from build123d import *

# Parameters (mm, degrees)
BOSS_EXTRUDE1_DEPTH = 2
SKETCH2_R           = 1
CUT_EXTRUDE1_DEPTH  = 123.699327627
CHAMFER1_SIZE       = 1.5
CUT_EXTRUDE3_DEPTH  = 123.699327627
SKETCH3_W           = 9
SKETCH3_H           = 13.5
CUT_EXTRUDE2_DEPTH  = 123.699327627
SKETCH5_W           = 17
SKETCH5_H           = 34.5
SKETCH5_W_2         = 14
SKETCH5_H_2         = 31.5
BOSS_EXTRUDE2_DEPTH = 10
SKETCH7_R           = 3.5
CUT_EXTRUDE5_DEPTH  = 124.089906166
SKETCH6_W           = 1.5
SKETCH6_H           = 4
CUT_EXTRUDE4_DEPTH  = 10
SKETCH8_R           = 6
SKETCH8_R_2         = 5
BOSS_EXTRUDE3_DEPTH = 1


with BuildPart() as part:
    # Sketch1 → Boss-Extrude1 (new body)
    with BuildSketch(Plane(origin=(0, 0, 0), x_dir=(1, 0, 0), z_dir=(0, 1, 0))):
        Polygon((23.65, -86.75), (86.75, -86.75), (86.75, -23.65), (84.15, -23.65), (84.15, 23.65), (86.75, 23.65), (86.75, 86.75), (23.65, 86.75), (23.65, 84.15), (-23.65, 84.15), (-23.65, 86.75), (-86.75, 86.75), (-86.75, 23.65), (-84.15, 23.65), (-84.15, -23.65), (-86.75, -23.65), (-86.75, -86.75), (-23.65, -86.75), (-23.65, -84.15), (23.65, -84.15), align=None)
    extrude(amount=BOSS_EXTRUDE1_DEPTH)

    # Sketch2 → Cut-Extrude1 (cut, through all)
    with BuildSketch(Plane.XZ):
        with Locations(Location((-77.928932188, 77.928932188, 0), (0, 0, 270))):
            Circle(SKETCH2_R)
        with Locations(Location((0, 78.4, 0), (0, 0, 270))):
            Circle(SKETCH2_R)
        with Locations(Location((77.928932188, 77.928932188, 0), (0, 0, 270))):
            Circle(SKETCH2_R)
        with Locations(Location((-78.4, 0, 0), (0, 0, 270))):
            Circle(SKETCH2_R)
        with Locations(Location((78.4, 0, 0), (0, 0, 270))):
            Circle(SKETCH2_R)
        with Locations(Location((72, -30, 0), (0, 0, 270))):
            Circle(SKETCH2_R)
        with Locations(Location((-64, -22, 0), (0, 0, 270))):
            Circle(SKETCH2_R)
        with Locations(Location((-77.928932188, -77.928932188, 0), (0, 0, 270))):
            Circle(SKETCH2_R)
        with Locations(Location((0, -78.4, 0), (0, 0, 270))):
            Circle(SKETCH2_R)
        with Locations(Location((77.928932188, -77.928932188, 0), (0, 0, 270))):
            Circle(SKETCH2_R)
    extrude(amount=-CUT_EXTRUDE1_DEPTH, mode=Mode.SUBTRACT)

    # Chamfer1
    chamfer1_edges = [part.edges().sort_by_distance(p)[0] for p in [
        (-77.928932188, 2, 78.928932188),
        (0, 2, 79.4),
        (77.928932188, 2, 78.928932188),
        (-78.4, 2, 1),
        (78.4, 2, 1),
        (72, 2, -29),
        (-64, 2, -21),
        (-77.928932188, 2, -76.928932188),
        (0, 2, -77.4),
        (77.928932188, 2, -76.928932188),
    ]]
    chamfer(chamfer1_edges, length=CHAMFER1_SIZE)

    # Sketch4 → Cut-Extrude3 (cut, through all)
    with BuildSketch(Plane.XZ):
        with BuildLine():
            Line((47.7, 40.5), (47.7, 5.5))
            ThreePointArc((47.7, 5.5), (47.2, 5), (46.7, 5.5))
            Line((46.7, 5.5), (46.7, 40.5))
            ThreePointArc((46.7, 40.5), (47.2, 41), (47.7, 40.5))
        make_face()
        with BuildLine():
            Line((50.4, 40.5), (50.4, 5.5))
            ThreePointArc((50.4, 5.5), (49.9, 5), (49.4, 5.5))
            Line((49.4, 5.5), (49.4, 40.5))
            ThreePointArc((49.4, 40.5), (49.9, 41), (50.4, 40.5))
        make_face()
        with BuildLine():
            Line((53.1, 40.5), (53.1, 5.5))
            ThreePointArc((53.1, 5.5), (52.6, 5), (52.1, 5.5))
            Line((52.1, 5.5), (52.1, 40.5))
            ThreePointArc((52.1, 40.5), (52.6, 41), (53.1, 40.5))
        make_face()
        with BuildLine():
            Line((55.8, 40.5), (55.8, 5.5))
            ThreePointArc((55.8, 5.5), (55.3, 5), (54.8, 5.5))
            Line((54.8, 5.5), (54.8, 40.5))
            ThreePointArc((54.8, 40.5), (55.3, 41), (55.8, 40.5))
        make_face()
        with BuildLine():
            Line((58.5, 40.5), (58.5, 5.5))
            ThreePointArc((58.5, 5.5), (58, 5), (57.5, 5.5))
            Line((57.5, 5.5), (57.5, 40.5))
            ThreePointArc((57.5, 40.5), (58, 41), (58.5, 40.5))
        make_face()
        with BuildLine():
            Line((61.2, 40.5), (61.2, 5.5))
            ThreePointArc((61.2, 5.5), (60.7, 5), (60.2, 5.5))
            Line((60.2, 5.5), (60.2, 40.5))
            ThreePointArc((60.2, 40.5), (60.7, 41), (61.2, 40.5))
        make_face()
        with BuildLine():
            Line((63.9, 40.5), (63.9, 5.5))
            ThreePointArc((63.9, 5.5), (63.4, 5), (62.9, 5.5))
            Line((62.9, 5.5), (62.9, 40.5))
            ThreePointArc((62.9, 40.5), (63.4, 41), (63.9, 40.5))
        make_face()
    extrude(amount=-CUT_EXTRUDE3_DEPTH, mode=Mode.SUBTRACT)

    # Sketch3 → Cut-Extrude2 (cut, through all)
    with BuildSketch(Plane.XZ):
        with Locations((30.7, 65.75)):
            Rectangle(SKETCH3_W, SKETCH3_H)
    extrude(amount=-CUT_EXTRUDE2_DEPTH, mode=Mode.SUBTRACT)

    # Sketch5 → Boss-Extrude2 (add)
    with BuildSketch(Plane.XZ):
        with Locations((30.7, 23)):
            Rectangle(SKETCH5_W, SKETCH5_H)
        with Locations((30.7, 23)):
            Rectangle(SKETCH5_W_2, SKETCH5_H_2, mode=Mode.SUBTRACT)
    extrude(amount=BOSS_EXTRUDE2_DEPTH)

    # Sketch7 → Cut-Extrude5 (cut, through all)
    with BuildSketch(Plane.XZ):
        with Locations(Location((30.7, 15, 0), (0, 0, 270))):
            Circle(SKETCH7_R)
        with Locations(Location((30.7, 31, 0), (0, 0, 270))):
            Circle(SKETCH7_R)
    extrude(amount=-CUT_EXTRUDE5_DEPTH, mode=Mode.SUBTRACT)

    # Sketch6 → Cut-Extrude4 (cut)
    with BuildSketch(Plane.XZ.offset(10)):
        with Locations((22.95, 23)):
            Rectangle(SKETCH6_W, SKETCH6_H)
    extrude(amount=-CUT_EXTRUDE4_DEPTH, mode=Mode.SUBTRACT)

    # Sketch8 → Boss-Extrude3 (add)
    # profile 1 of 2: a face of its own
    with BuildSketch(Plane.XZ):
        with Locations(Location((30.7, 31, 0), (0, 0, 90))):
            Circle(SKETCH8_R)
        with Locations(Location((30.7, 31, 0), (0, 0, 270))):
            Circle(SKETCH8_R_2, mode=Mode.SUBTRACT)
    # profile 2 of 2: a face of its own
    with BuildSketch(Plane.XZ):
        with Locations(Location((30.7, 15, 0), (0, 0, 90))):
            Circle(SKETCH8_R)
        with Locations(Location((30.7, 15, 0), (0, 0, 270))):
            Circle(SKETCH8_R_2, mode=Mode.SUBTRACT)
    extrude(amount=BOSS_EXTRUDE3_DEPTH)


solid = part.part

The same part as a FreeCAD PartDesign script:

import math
import FreeCAD as App
import Part
import Sketcher
Q = App.Units.Quantity


def edges_at(feature, points):
    """Names of the edges that pass closest to the given points."""
    edges = feature.Shape.Edges
    near = lambda p: min(range(len(edges)), key=lambda i: edges[i].distToShape(Part.Vertex(*p))[0])
    return sorted({f"Edge{near(p) + 1}" for p in points})


def add_polygon(sketch, points):
    """Adds a closed chain of lines whose ends are joined by coincident constraints."""
    first, n = sketch.GeometryCount, len(points)
    for a, b in zip(points, points[1:] + points[:1]):
        sketch.addGeometry(Part.LineSegment(App.Vector(*a, 0), App.Vector(*b, 0)), False)
    for i in range(n):
        sketch.addConstraint(Sketcher.Constraint("Coincident", first + i, 2, first + (i + 1) % n, 1))

doc = App.newDocument("Part")
body = doc.addObject("PartDesign::Body", "Body")

sketch1 = body.newObject("Sketcher::SketchObject", "Sketch")
sketch1.AttachmentSupport = (doc.getObject("XZ_Plane"), [""])
sketch1.MapMode = "FlatFace"
add_polygon(sketch1, [(23.65, 86.75), (86.75, 86.75), (86.75, 23.65), (84.15, 23.65), (84.15, -23.65), (86.75, -23.65), (86.75, -86.75), (23.65, -86.75), (23.65, -84.15), (-23.65, -84.15), (-23.65, -86.75), (-86.75, -86.75), (-86.75, -23.65), (-84.15, -23.65), (-84.15, 23.65), (-86.75, 23.65), (-86.75, 86.75), (-23.65, 86.75), (-23.65, 84.15), (23.65, 84.15)])
sketch1.addConstraint(Sketcher.Constraint("Horizontal", 0))
sketch1.addConstraint(Sketcher.Constraint("Vertical", 1))
sketch1.addConstraint(Sketcher.Constraint("Horizontal", 2))
sketch1.addConstraint(Sketcher.Constraint("Vertical", 3))
sketch1.addConstraint(Sketcher.Constraint("Horizontal", 4))
sketch1.addConstraint(Sketcher.Constraint("Vertical", 5))
sketch1.addConstraint(Sketcher.Constraint("Horizontal", 6))
sketch1.addConstraint(Sketcher.Constraint("Vertical", 7))
sketch1.addConstraint(Sketcher.Constraint("Horizontal", 8))
sketch1.addConstraint(Sketcher.Constraint("Vertical", 9))
sketch1.addConstraint(Sketcher.Constraint("Horizontal", 10))
sketch1.addConstraint(Sketcher.Constraint("Vertical", 11))
sketch1.addConstraint(Sketcher.Constraint("Horizontal", 12))
sketch1.addConstraint(Sketcher.Constraint("Vertical", 13))
sketch1.addConstraint(Sketcher.Constraint("Horizontal", 14))
sketch1.addConstraint(Sketcher.Constraint("Vertical", 15))
sketch1.addConstraint(Sketcher.Constraint("Horizontal", 16))
sketch1.addConstraint(Sketcher.Constraint("Vertical", 17))
sketch1.addConstraint(Sketcher.Constraint("Horizontal", 18))
sketch1.addConstraint(Sketcher.Constraint("Vertical", 19))
sketch1.addConstraint(Sketcher.Constraint("Symmetric", 0, 2, 10, 2, -1, 1))
sketch1.addConstraint(Sketcher.Constraint("Symmetric", 2, 2, 12, 2, -1, 1))
sketch1.addConstraint(Sketcher.Constraint("Symmetric", 4, 2, 14, 2, -1, 1))
sketch1.addConstraint(Sketcher.Constraint("Symmetric", 6, 2, 16, 2, -1, 1))
sketch1.addConstraint(Sketcher.Constraint("Symmetric", 8, 2, 18, 2, -1, 1))
sketch1.addConstraint(Sketcher.Constraint("Symmetric", 6, 2, 9, 2, -2))
sketch1.addConstraint(Sketcher.Constraint("Symmetric", 4, 2, 11, 2, -2))
sketch1.addConstraint(Sketcher.Constraint("Equal", 16, 1))
sketch1.addConstraint(Sketcher.Constraint("Equal", 18, 3))
sketch1.addConstraint(Sketcher.Constraint("Equal", 14, 7))
sketch1.addConstraint(Sketcher.Constraint("DistanceX", 0, 1, 0, 2, Q("63.1 mm")))
sketch1.addConstraint(Sketcher.Constraint("DistanceX", 2, 2, 2, 1, Q("2.6 mm")))
sketch1.addConstraint(Sketcher.Constraint("DistanceX", 8, 2, 8, 1, Q("47.3 mm")))
pad1 = body.newObject("PartDesign::Pad", "Pad")
pad1.Profile = sketch1
pad1.Length = 2
pad1.Reversed = True

sketch2 = body.newObject("Sketcher::SketchObject", "Sketch001")
sketch2.AttachmentSupport = (doc.getObject("XZ_Plane"), [""])
sketch2.MapMode = "FlatFace"
sketch2.addGeometry(Part.Circle(App.Vector(-77.928932, 77.928932, 0), App.Vector(0, 0, 1), 1), False)
sketch2.addGeometry(Part.Circle(App.Vector(0, 78.4, 0), App.Vector(0, 0, 1), 1), False)
sketch2.addGeometry(Part.Circle(App.Vector(77.928932, 77.928932, 0), App.Vector(0, 0, 1), 1), False)
sketch2.addGeometry(Part.Circle(App.Vector(-78.4, 0, 0), App.Vector(0, 0, 1), 1), False)
sketch2.addGeometry(Part.Circle(App.Vector(78.4, 0, 0), App.Vector(0, 0, 1), 1), False)
sketch2.addGeometry(Part.Circle(App.Vector(72, -30, 0), App.Vector(0, 0, 1), 1), False)
sketch2.addGeometry(Part.Circle(App.Vector(-64, -22, 0), App.Vector(0, 0, 1), 1), False)
sketch2.addGeometry(Part.Circle(App.Vector(-77.928932, -77.928932, 0), App.Vector(0, 0, 1), 1), False)
sketch2.addGeometry(Part.Circle(App.Vector(0, -78.4, 0), App.Vector(0, 0, 1), 1), False)
sketch2.addGeometry(Part.Circle(App.Vector(77.928932, -77.928932, 0), App.Vector(0, 0, 1), 1), False)
sketch2.addConstraint(Sketcher.Constraint("Equal", 0, 1))
sketch2.addConstraint(Sketcher.Constraint("Equal", 1, 2))
sketch2.addConstraint(Sketcher.Constraint("Equal", 2, 3))
sketch2.addConstraint(Sketcher.Constraint("Equal", 3, 4))
sketch2.addConstraint(Sketcher.Constraint("Equal", 4, 5))
sketch2.addConstraint(Sketcher.Constraint("Equal", 5, 6))
sketch2.addConstraint(Sketcher.Constraint("Equal", 6, 7))
sketch2.addConstraint(Sketcher.Constraint("Equal", 7, 8))
sketch2.addConstraint(Sketcher.Constraint("Equal", 8, 9))
sketch2.addConstraint(Sketcher.Constraint("Symmetric", 3, 3, 4, 3, -1, 1))
sketch2.addConstraint(Sketcher.Constraint("Symmetric", 2, 3, 7, 3, -1, 1))
sketch2.addConstraint(Sketcher.Constraint("Symmetric", 1, 3, 8, 3, -1, 1))
sketch2.addConstraint(Sketcher.Constraint("Symmetric", 0, 3, 9, 3, -1, 1))
sketch2.addConstraint(Sketcher.Constraint("Symmetric", 0, 3, 2, 3, -2))
sketch2.addConstraint(Sketcher.Constraint("PointOnObject", 1, 3, -2))
sketch2.addConstraint(Sketcher.Constraint("PointOnObject", 3, 3, -1))
sketch2.addConstraint(Sketcher.Constraint("Diameter", 0, Q("2 mm")))
sketch2.addConstraint(Sketcher.Constraint("DistanceX", -1, 1, 5, 3, Q("72 mm")))
sketch2.addConstraint(Sketcher.Constraint("DistanceY", 5, 3, -1, 1, Q("30 mm")))
sketch2.addConstraint(Sketcher.Constraint("DistanceX", 6, 3, -1, 1, Q("64 mm")))
sketch2.addConstraint(Sketcher.Constraint("DistanceY", 6, 3, -1, 1, Q("22 mm")))
sketch2.addConstraint(Sketcher.Constraint("DistanceY", -1, 1, 1, 3, Q("78.4 mm")))
sketch2.addConstraint(Sketcher.Constraint("DistanceX", 3, 3, -1, 1, Q("78.4 mm")))
sketch2.addConstraint(Sketcher.Constraint("DistanceX", 0, 3, -1, 1, Q("77.928932 mm")))
sketch2.addConstraint(Sketcher.Constraint("DistanceY", -1, 1, 0, 3, Q("77.928932 mm")))
pocket1 = body.newObject("PartDesign::Pocket", "Pocket")
pocket1.Profile = sketch2
pocket1.Type = "ThroughAll"
doc.recompute()

chamfer = body.newObject("PartDesign::Chamfer", "Chamfer")
chamfer.Base = (pocket1, edges_at(pocket1, [
    (-77.929, 2, 78.929),
    (0, 2, 79.4),
    (77.929, 2, 78.929),
    (-78.4, 2, 1),
    (78.4, 2, 1),
    (72, 2, -29),
    (-64, 2, -21),
    (-77.929, 2, -76.929),
    (0, 2, -77.4),
    (77.929, 2, -76.929),
]))
chamfer.Size = 1.5

sketch3 = body.newObject("Sketcher::SketchObject", "Sketch002")
sketch3.AttachmentSupport = (doc.getObject("XZ_Plane"), [""])
sketch3.MapMode = "FlatFace"
sketch3.addGeometry(Part.LineSegment(App.Vector(47.7, 5.5, 0), App.Vector(47.7, 40.5, 0)), False)
sketch3.addGeometry(Part.ArcOfCircle(Part.Circle(App.Vector(47.2, 40.5, 0), App.Vector(0, 0, 1), 0.5), math.radians(0), math.radians(180)), False)
sketch3.addGeometry(Part.LineSegment(App.Vector(46.7, 40.5, 0), App.Vector(46.7, 5.5, 0)), False)
sketch3.addGeometry(Part.ArcOfCircle(Part.Circle(App.Vector(47.2, 5.5, 0), App.Vector(0, 0, 1), 0.5), math.radians(180), math.radians(360)), False)
sketch3.addGeometry(Part.LineSegment(App.Vector(50.4, 5.5, 0), App.Vector(50.4, 40.5, 0)), False)
sketch3.addGeometry(Part.ArcOfCircle(Part.Circle(App.Vector(49.9, 40.5, 0), App.Vector(0, 0, 1), 0.5), math.radians(0), math.radians(180)), False)
sketch3.addGeometry(Part.LineSegment(App.Vector(49.4, 40.5, 0), App.Vector(49.4, 5.5, 0)), False)
sketch3.addGeometry(Part.ArcOfCircle(Part.Circle(App.Vector(49.9, 5.5, 0), App.Vector(0, 0, 1), 0.5), math.radians(180), math.radians(360)), False)
sketch3.addGeometry(Part.LineSegment(App.Vector(53.1, 5.5, 0), App.Vector(53.1, 40.5, 0)), False)
sketch3.addGeometry(Part.ArcOfCircle(Part.Circle(App.Vector(52.6, 40.5, 0), App.Vector(0, 0, 1), 0.5), math.radians(0), math.radians(180)), False)
sketch3.addGeometry(Part.LineSegment(App.Vector(52.1, 40.5, 0), App.Vector(52.1, 5.5, 0)), False)
sketch3.addGeometry(Part.ArcOfCircle(Part.Circle(App.Vector(52.6, 5.5, 0), App.Vector(0, 0, 1), 0.5), math.radians(180), math.radians(360)), False)
sketch3.addGeometry(Part.LineSegment(App.Vector(55.8, 5.5, 0), App.Vector(55.8, 40.5, 0)), False)
sketch3.addGeometry(Part.ArcOfCircle(Part.Circle(App.Vector(55.3, 40.5, 0), App.Vector(0, 0, 1), 0.5), math.radians(0), math.radians(180)), False)
sketch3.addGeometry(Part.LineSegment(App.Vector(54.8, 40.5, 0), App.Vector(54.8, 5.5, 0)), False)
sketch3.addGeometry(Part.ArcOfCircle(Part.Circle(App.Vector(55.3, 5.5, 0), App.Vector(0, 0, 1), 0.5), math.radians(180), math.radians(360)), False)
sketch3.addGeometry(Part.LineSegment(App.Vector(58.5, 5.5, 0), App.Vector(58.5, 40.5, 0)), False)
sketch3.addGeometry(Part.ArcOfCircle(Part.Circle(App.Vector(58, 40.5, 0), App.Vector(0, 0, 1), 0.5), math.radians(0), math.radians(180)), False)
sketch3.addGeometry(Part.LineSegment(App.Vector(57.5, 40.5, 0), App.Vector(57.5, 5.5, 0)), False)
sketch3.addGeometry(Part.ArcOfCircle(Part.Circle(App.Vector(58, 5.5, 0), App.Vector(0, 0, 1), 0.5), math.radians(180), math.radians(360)), False)
sketch3.addGeometry(Part.LineSegment(App.Vector(61.2, 5.5, 0), App.Vector(61.2, 40.5, 0)), False)
sketch3.addGeometry(Part.ArcOfCircle(Part.Circle(App.Vector(60.7, 40.5, 0), App.Vector(0, 0, 1), 0.5), math.radians(0), math.radians(180)), False)
sketch3.addGeometry(Part.LineSegment(App.Vector(60.2, 40.5, 0), App.Vector(60.2, 5.5, 0)), False)
sketch3.addGeometry(Part.ArcOfCircle(Part.Circle(App.Vector(60.7, 5.5, 0), App.Vector(0, 0, 1), 0.5), math.radians(180), math.radians(360)), False)
sketch3.addGeometry(Part.LineSegment(App.Vector(63.9, 5.5, 0), App.Vector(63.9, 40.5, 0)), False)
sketch3.addGeometry(Part.ArcOfCircle(Part.Circle(App.Vector(63.4, 40.5, 0), App.Vector(0, 0, 1), 0.5), math.radians(0), math.radians(180)), False)
sketch3.addGeometry(Part.LineSegment(App.Vector(62.9, 40.5, 0), App.Vector(62.9, 5.5, 0)), False)
sketch3.addGeometry(Part.ArcOfCircle(Part.Circle(App.Vector(63.4, 5.5, 0), App.Vector(0, 0, 1), 0.5), math.radians(180), math.radians(360)), False)
sketch3.addConstraint(Sketcher.Constraint("Tangent", 0, 2, 1, 1))
sketch3.addConstraint(Sketcher.Constraint("Tangent", 1, 2, 2, 1))
sketch3.addConstraint(Sketcher.Constraint("Tangent", 2, 2, 3, 1))
sketch3.addConstraint(Sketcher.Constraint("Tangent", 3, 2, 0, 1))
sketch3.addConstraint(Sketcher.Constraint("Tangent", 4, 2, 5, 1))
sketch3.addConstraint(Sketcher.Constraint("Tangent", 5, 2, 6, 1))
sketch3.addConstraint(Sketcher.Constraint("Tangent", 6, 2, 7, 1))
sketch3.addConstraint(Sketcher.Constraint("Tangent", 7, 2, 4, 1))
sketch3.addConstraint(Sketcher.Constraint("Tangent", 8, 2, 9, 1))
sketch3.addConstraint(Sketcher.Constraint("Tangent", 9, 2, 10, 1))
sketch3.addConstraint(Sketcher.Constraint("Tangent", 10, 2, 11, 1))
sketch3.addConstraint(Sketcher.Constraint("Tangent", 11, 2, 8, 1))
sketch3.addConstraint(Sketcher.Constraint("Tangent", 12, 2, 13, 1))
sketch3.addConstraint(Sketcher.Constraint("Tangent", 13, 2, 14, 1))
sketch3.addConstraint(Sketcher.Constraint("Tangent", 14, 2, 15, 1))
sketch3.addConstraint(Sketcher.Constraint("Tangent", 15, 2, 12, 1))
sketch3.addConstraint(Sketcher.Constraint("Tangent", 16, 2, 17, 1))
sketch3.addConstraint(Sketcher.Constraint("Tangent", 17, 2, 18, 1))
sketch3.addConstraint(Sketcher.Constraint("Tangent", 18, 2, 19, 1))
sketch3.addConstraint(Sketcher.Constraint("Tangent", 19, 2, 16, 1))
sketch3.addConstraint(Sketcher.Constraint("Tangent", 20, 2, 21, 1))
sketch3.addConstraint(Sketcher.Constraint("Tangent", 21, 2, 22, 1))
sketch3.addConstraint(Sketcher.Constraint("Tangent", 22, 2, 23, 1))
sketch3.addConstraint(Sketcher.Constraint("Tangent", 23, 2, 20, 1))
sketch3.addConstraint(Sketcher.Constraint("Tangent", 24, 2, 25, 1))
sketch3.addConstraint(Sketcher.Constraint("Tangent", 25, 2, 26, 1))
sketch3.addConstraint(Sketcher.Constraint("Tangent", 26, 2, 27, 1))
sketch3.addConstraint(Sketcher.Constraint("Tangent", 27, 2, 24, 1))
sketch3.addConstraint(Sketcher.Constraint("Vertical", 0))
sketch3.addConstraint(Sketcher.Constraint("Vertical", 2))
sketch3.addConstraint(Sketcher.Constraint("Vertical", 4))
sketch3.addConstraint(Sketcher.Constraint("Vertical", 6))
sketch3.addConstraint(Sketcher.Constraint("Vertical", 8))
sketch3.addConstraint(Sketcher.Constraint("Vertical", 10))
sketch3.addConstraint(Sketcher.Constraint("Vertical", 12))
sketch3.addConstraint(Sketcher.Constraint("Vertical", 14))
sketch3.addConstraint(Sketcher.Constraint("Vertical", 16))
sketch3.addConstraint(Sketcher.Constraint("Vertical", 18))
sketch3.addConstraint(Sketcher.Constraint("Vertical", 20))
sketch3.addConstraint(Sketcher.Constraint("Vertical", 22))
sketch3.addConstraint(Sketcher.Constraint("Vertical", 24))
sketch3.addConstraint(Sketcher.Constraint("Vertical", 26))
sketch3.addConstraint(Sketcher.Constraint("Equal", 3, 5))
sketch3.addConstraint(Sketcher.Constraint("Equal", 7, 9))
sketch3.addConstraint(Sketcher.Constraint("Equal", 11, 13))
sketch3.addConstraint(Sketcher.Constraint("Equal", 15, 17))
sketch3.addConstraint(Sketcher.Constraint("Equal", 19, 21))
sketch3.addConstraint(Sketcher.Constraint("Equal", 23, 25))
sketch3.addConstraint(Sketcher.Constraint("Horizontal", 1, 3, 5, 3))
sketch3.addConstraint(Sketcher.Constraint("Horizontal", 3, 3, 7, 3))
sketch3.addConstraint(Sketcher.Constraint("Horizontal", 5, 3, 9, 3))
sketch3.addConstraint(Sketcher.Constraint("Horizontal", 7, 3, 11, 3))
sketch3.addConstraint(Sketcher.Constraint("Horizontal", 9, 3, 13, 3))
sketch3.addConstraint(Sketcher.Constraint("Horizontal", 11, 3, 15, 3))
sketch3.addConstraint(Sketcher.Constraint("Horizontal", 13, 3, 17, 3))
sketch3.addConstraint(Sketcher.Constraint("Horizontal", 15, 3, 19, 3))
sketch3.addConstraint(Sketcher.Constraint("Horizontal", 17, 3, 21, 3))
sketch3.addConstraint(Sketcher.Constraint("Horizontal", 19, 3, 23, 3))
sketch3.addConstraint(Sketcher.Constraint("Horizontal", 21, 3, 25, 3))
sketch3.addConstraint(Sketcher.Constraint("Horizontal", 23, 3, 27, 3))
sketch3.addConstraint(Sketcher.Constraint("Radius", 1, Q("0.5 mm")))
sketch3.addConstraint(Sketcher.Constraint("DistanceY", 0, 1, 0, 2, Q("35 mm")))
sketch3.addConstraint(Sketcher.Constraint("DistanceX", -1, 1, 17, 3, Q("58 mm")))
sketch3.addConstraint(Sketcher.Constraint("DistanceX", -1, 1, 1, 3, Q("47.2 mm")))
sketch3.addConstraint(Sketcher.Constraint("DistanceY", -1, 1, 1, 3, Q("40.5 mm")))
sketch3.addConstraint(Sketcher.Constraint("DistanceX", -1, 1, 5, 3, Q("49.9 mm")))
sketch3.addConstraint(Sketcher.Constraint("DistanceX", -1, 1, 9, 3, Q("52.6 mm")))
sketch3.addConstraint(Sketcher.Constraint("DistanceX", -1, 1, 13, 3, Q("55.3 mm")))
sketch3.addConstraint(Sketcher.Constraint("DistanceX", -1, 1, 21, 3, Q("60.7 mm")))
sketch3.addConstraint(Sketcher.Constraint("DistanceX", -1, 1, 25, 3, Q("63.4 mm")))
pocket2 = body.newObject("PartDesign::Pocket", "Pocket001")
pocket2.Profile = sketch3
pocket2.Type = "ThroughAll"

sketch4 = body.newObject("Sketcher::SketchObject", "Sketch003")
sketch4.AttachmentSupport = (doc.getObject("XZ_Plane"), [""])
sketch4.MapMode = "FlatFace"
add_polygon(sketch4, [(26.2, 72.5), (26.2, 59), (35.2, 59), (35.2, 72.5)])
sketch4.addConstraint(Sketcher.Constraint("Vertical", 0))
sketch4.addConstraint(Sketcher.Constraint("Horizontal", 1))
sketch4.addConstraint(Sketcher.Constraint("Vertical", 2))
sketch4.addConstraint(Sketcher.Constraint("Horizontal", 3))
sketch4.addConstraint(Sketcher.Constraint("DistanceX", 1, 1, 1, 2, Q("9 mm")))
sketch4.addConstraint(Sketcher.Constraint("DistanceY", 0, 2, 0, 1, Q("13.5 mm")))
sketch4.addConstraint(Sketcher.Constraint("DistanceY", -1, 1, 0, 2, Q("59 mm")))
sketch4.addConstraint(Sketcher.Constraint("DistanceX", -1, 1, 0, 2, Q("26.2 mm")))
pocket3 = body.newObject("PartDesign::Pocket", "Pocket002")
pocket3.Profile = sketch4
pocket3.Type = "ThroughAll"

sketch5 = body.newObject("Sketcher::SketchObject", "Sketch004")
sketch5.AttachmentSupport = (doc.getObject("XZ_Plane"), [""])
sketch5.MapMode = "FlatFace"
add_polygon(sketch5, [(22.2, 40.25), (22.2, 5.75), (39.2, 5.75), (39.2, 40.25)])
add_polygon(sketch5, [(37.7, 7.25), (23.7, 7.25), (23.7, 38.75), (37.7, 38.75)])
sketch5.addConstraint(Sketcher.Constraint("Vertical", 0))
sketch5.addConstraint(Sketcher.Constraint("Horizontal", 1))
sketch5.addConstraint(Sketcher.Constraint("Vertical", 2))
sketch5.addConstraint(Sketcher.Constraint("Horizontal", 3))
sketch5.addConstraint(Sketcher.Constraint("Horizontal", 4))
sketch5.addConstraint(Sketcher.Constraint("Vertical", 5))
sketch5.addConstraint(Sketcher.Constraint("Horizontal", 6))
sketch5.addConstraint(Sketcher.Constraint("Vertical", 7))
sketch5.addConstraint(Sketcher.Constraint("DistanceX", 1, 1, 1, 2, Q("17 mm")))
sketch5.addConstraint(Sketcher.Constraint("DistanceX", 4, 2, 4, 1, Q("14 mm")))
sketch5.addConstraint(Sketcher.Constraint("DistanceY", 0, 2, 0, 1, Q("34.5 mm")))
sketch5.addConstraint(Sketcher.Constraint("DistanceY", 5, 1, 5, 2, Q("31.5 mm")))
sketch5.addConstraint(Sketcher.Constraint("DistanceY", 4, 2, 3, 2, Q("33 mm")))
sketch5.addConstraint(Sketcher.Constraint("DistanceX", -1, 1, 0, 2, Q("22.2 mm")))
sketch5.addConstraint(Sketcher.Constraint("DistanceX", -1, 1, 4, 2, Q("23.7 mm")))
sketch5.addConstraint(Sketcher.Constraint("DistanceY", -1, 1, 0, 2, Q("5.75 mm")))
pad2 = body.newObject("PartDesign::Pad", "Pad001")
pad2.Profile = sketch5
pad2.Length = 10

sketch6 = body.newObject("Sketcher::SketchObject", "Sketch005")
sketch6.AttachmentSupport = (doc.getObject("XZ_Plane"), [""])
sketch6.MapMode = "FlatFace"
sketch6.addGeometry(Part.Circle(App.Vector(30.7, 15, 0), App.Vector(0, 0, 1), 3.5), False)
sketch6.addGeometry(Part.Circle(App.Vector(30.7, 31, 0), App.Vector(0, 0, 1), 3.5), False)
sketch6.addConstraint(Sketcher.Constraint("Equal", 0, 1))
sketch6.addConstraint(Sketcher.Constraint("Vertical", 0, 3, 1, 3))
sketch6.addConstraint(Sketcher.Constraint("Diameter", 0, Q("7 mm")))
sketch6.addConstraint(Sketcher.Constraint("DistanceY", -1, 1, 0, 3, Q("15 mm")))
sketch6.addConstraint(Sketcher.Constraint("DistanceY", -1, 1, 1, 3, Q("31 mm")))
sketch6.addConstraint(Sketcher.Constraint("DistanceX", -1, 1, 0, 3, Q("30.7 mm")))
pocket4 = body.newObject("PartDesign::Pocket", "Pocket003")
pocket4.Profile = sketch6
pocket4.Type = "ThroughAll"

sketch7 = body.newObject("Sketcher::SketchObject", "Sketch006")
sketch7.AttachmentSupport = (doc.getObject("XZ_Plane"), [""])
sketch7.MapMode = "FlatFace"
sketch7.AttachmentOffset = App.Placement(App.Vector(0, 0, 10), App.Rotation())
add_polygon(sketch7, [(22.2, 25), (22.2, 21), (23.7, 21), (23.7, 25)])
sketch7.addConstraint(Sketcher.Constraint("Vertical", 0))
sketch7.addConstraint(Sketcher.Constraint("Horizontal", 1))
sketch7.addConstraint(Sketcher.Constraint("Vertical", 2))
sketch7.addConstraint(Sketcher.Constraint("Horizontal", 3))
sketch7.addConstraint(Sketcher.Constraint("DistanceY", 0, 2, 0, 1, Q("4 mm")))
sketch7.addConstraint(Sketcher.Constraint("DistanceX", 1, 1, 1, 2, Q("1.5 mm")))
sketch7.addConstraint(Sketcher.Constraint("DistanceY", -1, 1, 0, 2, Q("21 mm")))
sketch7.addConstraint(Sketcher.Constraint("DistanceX", -1, 1, 0, 2, Q("22.2 mm")))
pocket5 = body.newObject("PartDesign::Pocket", "Pocket004")
pocket5.Profile = sketch7
pocket5.Length = 10

sketch8 = body.newObject("Sketcher::SketchObject", "Sketch007")
sketch8.AttachmentSupport = (doc.getObject("XZ_Plane"), [""])
sketch8.MapMode = "FlatFace"
sketch8.addGeometry(Part.Circle(App.Vector(30.7, 31, 0), App.Vector(0, 0, 1), 6), False)
sketch8.addGeometry(Part.Circle(App.Vector(30.7, 31, 0), App.Vector(0, 0, 1), 5), False)
sketch8.addGeometry(Part.Circle(App.Vector(30.7, 15, 0), App.Vector(0, 0, 1), 6), False)
sketch8.addGeometry(Part.Circle(App.Vector(30.7, 15, 0), App.Vector(0, 0, 1), 5), False)
sketch8.addConstraint(Sketcher.Constraint("Coincident", 1, 3, 0, 3))
sketch8.addConstraint(Sketcher.Constraint("Coincident", 3, 3, 2, 3))
sketch8.addConstraint(Sketcher.Constraint("Equal", 0, 2))
sketch8.addConstraint(Sketcher.Constraint("Equal", 1, 3))
sketch8.addConstraint(Sketcher.Constraint("Vertical", 1, 3, 2, 3))
sketch8.addConstraint(Sketcher.Constraint("Diameter", 0, Q("12 mm")))
sketch8.addConstraint(Sketcher.Constraint("Diameter", 1, Q("10 mm")))
sketch8.addConstraint(Sketcher.Constraint("DistanceY", -1, 1, 0, 3, Q("31 mm")))
sketch8.addConstraint(Sketcher.Constraint("DistanceY", -1, 1, 2, 3, Q("15 mm")))
sketch8.addConstraint(Sketcher.Constraint("DistanceX", -1, 1, 0, 3, Q("30.7 mm")))
pad3 = body.newObject("PartDesign::Pad", "Pad002")
pad3.Profile = sketch8
pad3.Length = 1

doc.recompute()
